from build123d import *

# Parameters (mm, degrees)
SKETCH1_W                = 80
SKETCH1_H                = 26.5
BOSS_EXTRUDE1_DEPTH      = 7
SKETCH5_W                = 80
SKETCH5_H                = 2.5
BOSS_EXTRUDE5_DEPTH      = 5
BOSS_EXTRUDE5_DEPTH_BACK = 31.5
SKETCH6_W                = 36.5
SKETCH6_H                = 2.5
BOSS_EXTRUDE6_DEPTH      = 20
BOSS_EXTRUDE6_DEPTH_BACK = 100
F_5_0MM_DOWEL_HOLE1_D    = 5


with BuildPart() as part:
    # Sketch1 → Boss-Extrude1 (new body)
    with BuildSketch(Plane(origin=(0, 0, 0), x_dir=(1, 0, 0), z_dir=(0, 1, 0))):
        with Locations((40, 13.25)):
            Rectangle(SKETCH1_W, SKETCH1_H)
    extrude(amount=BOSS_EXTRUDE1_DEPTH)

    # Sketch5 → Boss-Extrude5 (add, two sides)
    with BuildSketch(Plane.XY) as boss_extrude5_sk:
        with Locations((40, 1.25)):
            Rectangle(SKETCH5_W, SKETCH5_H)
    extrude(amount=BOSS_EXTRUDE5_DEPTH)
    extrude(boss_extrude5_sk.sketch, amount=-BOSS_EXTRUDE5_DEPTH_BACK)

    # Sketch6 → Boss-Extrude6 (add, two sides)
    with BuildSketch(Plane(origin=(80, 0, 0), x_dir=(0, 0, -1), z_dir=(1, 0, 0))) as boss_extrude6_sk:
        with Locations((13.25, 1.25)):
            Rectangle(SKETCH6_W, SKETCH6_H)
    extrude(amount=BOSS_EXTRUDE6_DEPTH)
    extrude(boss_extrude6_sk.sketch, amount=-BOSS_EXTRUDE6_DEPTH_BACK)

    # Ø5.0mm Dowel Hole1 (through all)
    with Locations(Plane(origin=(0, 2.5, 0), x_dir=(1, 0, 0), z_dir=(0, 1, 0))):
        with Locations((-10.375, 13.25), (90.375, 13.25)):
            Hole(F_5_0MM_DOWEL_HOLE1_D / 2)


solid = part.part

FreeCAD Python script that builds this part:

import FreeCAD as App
import Part
import Sketcher

V = App.Vector

doc = App.newDocument("Part")
body = doc.addObject("PartDesign::Body", "Body")

# Sketch on XZ plane
sketch1 = doc.addObject("Sketcher::SketchObject", "Sketch")
body.addObject(sketch1)
sketch1.AttachmentSupport = (doc.XZ_Plane, [""])
sketch1.MapMode = "FlatFace"
sketch1.addGeometry(Part.LineSegment(V(0, -26, 0), V(0, 0, 0)), False)
sketch1.addGeometry(Part.LineSegment(V(0, 0, 0), V(80, 0, 0)), False)
sketch1.addGeometry(Part.LineSegment(V(80, 0, 0), V(80, -26, 0)), False)
sketch1.addGeometry(Part.LineSegment(V(80, -26, 0), V(0, -26, 0)), False)
sketch1.addConstraint(Sketcher.Constraint("Coincident", 0, 2, 1, 1))
sketch1.addConstraint(Sketcher.Constraint("Coincident", 1, 2, 2, 1))
sketch1.addConstraint(Sketcher.Constraint("Coincident", 2, 2, 3, 1))
sketch1.addConstraint(Sketcher.Constraint("Coincident", 3, 2, 0, 1))
sketch1.addConstraint(Sketcher.Constraint("Vertical", 0))
sketch1.addConstraint(Sketcher.Constraint("Horizontal", 1))
sketch1.addConstraint(Sketcher.Constraint("Vertical", 2))
sketch1.addConstraint(Sketcher.Constraint("Horizontal", 3))
sketch1.addConstraint(Sketcher.Constraint("Coincident", 0, 2, -1, 1))
sketch1.addConstraint(Sketcher.Constraint("DistanceX", 1, 1, 1, 2, 80.0))
sketch1.addConstraint(Sketcher.Constraint("DistanceY", 0, 1, 0, 2, 26.5))
pad1 = doc.addObject("PartDesign::Pad", "Pad")
body.addObject(pad1)
pad1.Profile = sketch1
pad1.Length = 7
pad1.Reversed = True

# Sketch on XY plane
sketch2 = doc.addObject("Sketcher::SketchObject", "Sketch001")
body.addObject(sketch2)
sketch2.AttachmentSupport = (doc.XY_Plane, [""])
sketch2.MapMode = "FlatFace"
sketch2.addGeometry(Part.LineSegment(V(0, 2.5, 0), V(0, 0, 0)), False)
sketch2.addGeometry(Part.LineSegment(V(0, 0, 0), V(80, 0, 0)), False)
sketch2.addGeometry(Part.LineSegment(V(80, 0, 0), V(80, 2.5, 0)), False)
sketch2.addGeometry(Part.LineSegment(V(80, 2.5, 0), V(0, 2.5, 0)), False)
sketch2.addConstraint(Sketcher.Constraint("Coincident", 0, 2, 1, 1))
sketch2.addConstraint(Sketcher.Constraint("Coincident", 1, 2, 2, 1))
sketch2.addConstraint(Sketcher.Constraint("Coincident", 2, 2, 3, 1))
sketch2.addConstraint(Sketcher.Constraint("Coincident", 3, 2, 0, 1))
sketch2.addConstraint(Sketcher.Constraint("Vertical", 0))
sketch2.addConstraint(Sketcher.Constraint("Horizontal", 1))
sketch2.addConstraint(Sketcher.Constraint("Vertical", 2))
sketch2.addConstraint(Sketcher.Constraint("Horizontal", 3))
sketch2.addConstraint(Sketcher.Constraint("Coincident", 0, 2, -1, 1))
sketch2.addConstraint(Sketcher.Constraint("DistanceX", 1, 1, 1, 2, 80.0))
sketch2.addConstraint(Sketcher.Constraint("DistanceY", 0, 2, 0, 1, 2.5))
pad2 = doc.addObject("PartDesign::Pad", "Pad001")
body.addObject(pad2)
pad2.Profile = sketch2
pad2.Type = "TwoLengths"
pad2.Length = 5
pad2.Length2 = 31.5

# Sketch on YZ plane
sketch3 = doc.addObject("Sketcher::SketchObject", "Sketch002")
body.addObject(sketch3)
sketch3.AttachmentSupport = (doc.YZ_Plane, [""])
sketch3.MapMode = "FlatFace"
sketch3.AttachmentOffset = App.Placement(V(0, 0, 80), App.Rotation())
sketch3.addGeometry(Part.LineSegment(V(2.5, 5, 0), V(0, 5, 0)), False)
sketch3.addGeometry(Part.LineSegment(V(0, 5, 0), V(0, -31.5, 0)), False)
sketch3.addGeometry(Part.LineSegment(V(0, -31.5, 0), V(2.5, -31.5, 0)), False)
sketch3.addGeometry(Part.LineSegment(V(2.5, -31.5, 0), V(2.5, 5, 0)), False)
sketch3.addConstraint(Sketcher.Constraint("Coincident", 0, 2, 1, 1))
sketch3.addConstraint(Sketcher.Constraint("Coincident", 1, 2, 2, 1))
sketch3.addConstraint(Sketcher.Constraint("Coincident", 2, 2, 3, 1))
sketch3.addConstraint(Sketcher.Constraint("Coincident", 3, 2, 0, 1))
sketch3.addConstraint(Sketcher.Constraint("Horizontal", 0))
sketch3.addConstraint(Sketcher.Constraint("Vertical", 1))
sketch3.addConstraint(Sketcher.Constraint("Horizontal", 2))
sketch3.addConstraint(Sketcher.Constraint("Vertical", 3))
sketch3.addConstraint(Sketcher.Constraint("PointOnObject", 0, 2, -2))
sketch3.addConstraint(Sketcher.Constraint("DistanceX", 0, 2, 0, 1, 2.5))
sketch3.addConstraint(Sketcher.Constraint("DistanceY", 1, 2, 1, 1, 36.5))
sketch3.addConstraint(Sketcher.Constraint("DistanceY", -1, 1, 0, 2, 5.0))
pad3 = doc.addObject("PartDesign::Pad", "Pad002")
body.addObject(pad3)
pad3.Profile = sketch3
pad3.Type = "TwoLengths"
pad3.Length = 20
pad3.Length2 = 100

# Sketch on XZ plane
sketch4 = doc.addObject("Sketcher::SketchObject", "Sketch003")
body.addObject(sketch4)
sketch4.AttachmentSupport = (doc.XZ_Plane, [""])
sketch4.MapMode = "FlatFace"
sketch4.AttachmentOffset = App.Placement(V(0, 0, -2.5), App.Rotation())
sketch4.addGeometry(Part.Circle(V(-10.4, -13.2, 0), V(0, 0, 1), 2.5), False)
sketch4.addGeometry(Part.Circle(V(90.4, -13.2, 0), V(0, 0, 1), 2.5), False)
sketch4.addConstraint(Sketcher.Constraint("Equal", 0, 1))
sketch4.addConstraint(Sketcher.Constraint("Horizontal", 0, 3, 1, 3))
sketch4.addConstraint(Sketcher.Constraint("Diameter", 0, 5.0))
sketch4.addConstraint(Sketcher.Constraint("DistanceY", 0, 3, -1, 1, 13.25))
sketch4.addConstraint(Sketcher.Constraint("DistanceX", 0, 3, 1, 3, 100.75))
sketch4.addConstraint(Sketcher.Constraint("DistanceX", 0, 3, -1, 1, 10.375))
doc.recompute()
hole = doc.addObject("PartDesign::Hole", "Hole")
body.addObject(hole)
hole.Profile = sketch4
hole.ThreadType = "None"
hole.Diameter = 5
hole.DepthType = "ThroughAll"
hole.Reversed = True

doc.recompute()
